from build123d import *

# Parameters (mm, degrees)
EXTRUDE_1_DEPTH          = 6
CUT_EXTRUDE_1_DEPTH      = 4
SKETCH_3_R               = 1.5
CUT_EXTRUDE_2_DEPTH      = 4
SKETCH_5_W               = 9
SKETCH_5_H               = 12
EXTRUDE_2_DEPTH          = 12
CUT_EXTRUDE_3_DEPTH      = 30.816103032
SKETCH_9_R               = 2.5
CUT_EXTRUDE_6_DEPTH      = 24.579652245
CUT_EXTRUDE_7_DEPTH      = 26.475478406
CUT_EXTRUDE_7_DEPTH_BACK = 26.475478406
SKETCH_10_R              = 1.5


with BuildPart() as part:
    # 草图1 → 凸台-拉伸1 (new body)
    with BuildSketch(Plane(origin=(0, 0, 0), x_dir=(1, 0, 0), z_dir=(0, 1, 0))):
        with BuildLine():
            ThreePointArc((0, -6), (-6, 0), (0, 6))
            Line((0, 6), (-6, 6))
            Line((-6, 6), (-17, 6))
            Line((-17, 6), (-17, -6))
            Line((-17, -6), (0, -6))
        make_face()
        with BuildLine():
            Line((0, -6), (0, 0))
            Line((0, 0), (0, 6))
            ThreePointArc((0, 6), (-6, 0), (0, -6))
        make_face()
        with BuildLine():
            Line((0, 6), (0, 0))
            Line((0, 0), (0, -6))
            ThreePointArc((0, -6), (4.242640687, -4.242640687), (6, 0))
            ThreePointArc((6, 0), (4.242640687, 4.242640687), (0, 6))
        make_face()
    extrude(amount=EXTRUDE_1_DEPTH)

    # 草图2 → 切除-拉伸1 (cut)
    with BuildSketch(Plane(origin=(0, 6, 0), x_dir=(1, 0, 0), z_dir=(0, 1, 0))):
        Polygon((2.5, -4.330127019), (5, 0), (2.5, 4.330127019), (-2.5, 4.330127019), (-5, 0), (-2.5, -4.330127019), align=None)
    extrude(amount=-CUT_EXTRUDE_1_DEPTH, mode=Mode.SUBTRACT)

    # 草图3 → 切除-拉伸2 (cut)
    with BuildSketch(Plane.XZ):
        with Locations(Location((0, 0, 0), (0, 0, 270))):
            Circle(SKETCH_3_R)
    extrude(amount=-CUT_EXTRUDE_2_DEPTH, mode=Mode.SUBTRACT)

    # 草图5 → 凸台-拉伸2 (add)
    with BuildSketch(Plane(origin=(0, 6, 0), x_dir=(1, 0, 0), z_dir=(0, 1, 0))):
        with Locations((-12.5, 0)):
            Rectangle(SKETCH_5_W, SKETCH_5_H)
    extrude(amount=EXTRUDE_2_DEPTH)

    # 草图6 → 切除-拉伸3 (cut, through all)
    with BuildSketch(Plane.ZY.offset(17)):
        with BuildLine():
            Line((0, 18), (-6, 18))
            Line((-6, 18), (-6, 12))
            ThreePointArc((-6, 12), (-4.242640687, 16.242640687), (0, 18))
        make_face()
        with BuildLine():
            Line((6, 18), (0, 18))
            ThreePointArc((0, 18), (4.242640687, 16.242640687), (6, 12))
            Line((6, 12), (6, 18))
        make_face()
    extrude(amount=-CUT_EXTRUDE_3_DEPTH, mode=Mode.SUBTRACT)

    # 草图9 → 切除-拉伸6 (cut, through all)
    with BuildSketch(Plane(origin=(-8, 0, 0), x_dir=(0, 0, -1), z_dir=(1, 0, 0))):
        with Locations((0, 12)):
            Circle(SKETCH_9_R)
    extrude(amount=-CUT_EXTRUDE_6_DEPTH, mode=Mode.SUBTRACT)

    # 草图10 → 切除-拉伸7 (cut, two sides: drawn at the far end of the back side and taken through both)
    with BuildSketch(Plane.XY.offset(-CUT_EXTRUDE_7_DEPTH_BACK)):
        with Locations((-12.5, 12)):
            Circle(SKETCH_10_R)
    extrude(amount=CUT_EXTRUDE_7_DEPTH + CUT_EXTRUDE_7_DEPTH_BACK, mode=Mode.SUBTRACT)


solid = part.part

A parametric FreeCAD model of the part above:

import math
import FreeCAD as App
import Part
import Sketcher
Q = App.Units.Quantity


def add_polygon(sketch, points):
    """Adds a closed chain of lines whose ends are joined by coincident constraints."""
    first, n = sketch.GeometryCount, len(points)
    for a, b in zip(points, points[1:] + points[:1]):
        sketch.addGeometry(Part.LineSegment(App.Vector(*a, 0), App.Vector(*b, 0)), False)
    for i in range(n):
        sketch.addConstraint(Sketcher.Constraint("Coincident", first + i, 2, first + (i + 1) % n, 1))

doc = App.newDocument("Part")
params = doc.addObject("Spreadsheet::Sheet", "Params")
for row, (alias, value) in enumerate([
    ("sketch1_radius", "6 mm"),
    ("sketch1_width", "17 mm"),
    ("pad1_length", "6 mm"),
    ("sketch2_width", "5 mm"),
    ("sketch2_length", "5 mm"),
    ("pocket1_length", "4 mm"),
    ("sketch3_diameter", "3 mm"),
    ("pocket2_length", "4 mm"),
    ("sketch4_width", "9 mm"),
    ("sketch4_height", "12 mm"),
    ("pad2_length", "12 mm"),
    ("sketch5_radius", "6 mm"),
    ("sketch6_diameter", "5 mm"),
    ("sketch7_diameter", "3 mm"),
], start=1):
    params.set(f"A{row}", alias)
    params.set(f"B{row}", "=" + value)
    params.setAlias(f"B{row}", alias)

body = doc.addObject("PartDesign::Body", "Body")

# Sketch on XZ plane
sketch1 = body.newObject("Sketcher::SketchObject", "Sketch")
sketch1.AttachmentSupport = (doc.getObject("XZ_Plane"), [""])
sketch1.MapMode = "FlatFace"
sketch1.addGeometry([
    Part.LineSegment(App.Vector(-17, -6, 0), App.Vector(-17, 6, 0)),  # 0
    Part.LineSegment(App.Vector(-17, 6, 0), App.Vector(0, 6, 0)),  # 1
    Part.ArcOfCircle(Part.Circle(App.Vector(0, 0, 0), App.Vector(0, 0, 1), 6), math.radians(0), math.radians(90)),  # 2
    Part.ArcOfCircle(Part.Circle(App.Vector(0, 0, 0), App.Vector(0, 0, 1), 6), math.radians(-90), math.radians(0)),  # 3
    Part.LineSegment(App.Vector(0, -6, 0), App.Vector(-17, -6, 0)),  # 4
], False)
sketch1.addConstraint([
    Sketcher.Constraint("Coincident", 0, 2, 1, 1),
    Sketcher.Constraint("Tangent", 1, 2, 2, 2),
    Sketcher.Constraint("Tangent", 2, 1, 3, 2),
    Sketcher.Constraint("Tangent", 3, 1, 4, 1),
    Sketcher.Constraint("Coincident", 4, 2, 0, 1),
    Sketcher.Constraint("Vertical", 0),
    Sketcher.Constraint("Horizontal", 1),
    Sketcher.Constraint("Horizontal", 4),
    Sketcher.Constraint("Coincident", 2, 3, -1, 1),
    Sketcher.Constraint("Equal", 2, 3),
    Sketcher.Constraint("PointOnObject", 2, 1, -1),
    Sketcher.Constraint("Radius", 2, 6.0),
    Sketcher.Constraint("DistanceX", 1, 1, 1, 2, 17.0),
])
sketch1.setExpression("Constraints[11]", "Params.sketch1_radius")
sketch1.setExpression("Constraints[12]", "Params.sketch1_width")
pad1 = body.newObject("PartDesign::Pad", "Pad")
pad1.Profile = sketch1
pad1.setExpression("Length", "Params.pad1_length")
pad1.Reversed = True

# Sketch on XZ plane
sketch2 = body.newObject("Sketcher::SketchObject", "Sketch001")
sketch2.AttachmentSupport = (doc.getObject("XZ_Plane"), [""])
sketch2.MapMode = "FlatFace"
sketch2.AttachmentOffset = App.Placement(App.Vector(0, 0, -6), App.Rotation())
add_polygon(sketch2, [(2.5, 4.330127), (5, 0), (2.5, -4.330127), (-2.5, -4.330127), (-5, 0), (-2.5, 4.330127)])  # lines 0-5
sketch2.addConstraint([
    Sketcher.Constraint("Horizontal", 2),
    Sketcher.Constraint("Horizontal", 5),
    Sketcher.Constraint("Symmetric", 0, 2, 3, 2, -1, 1),
    Sketcher.Constraint("Symmetric", 1, 2, 4, 2, -1, 1),
    Sketcher.Constraint("PointOnObject", 0, 2, -1),
    Sketcher.Constraint("Parallel", 0, 3),
    Sketcher.Constraint("Vertical", 2, 2, 4, 2),
    Sketcher.Constraint("DistanceX", 2, 2, 2, 1, 5.0),
    Sketcher.Constraint("Angle", 0, Q("-60 deg")),
    Sketcher.Constraint("Distance", 0, 5.0),
])
sketch2.setExpression("Constraints[13]", "Params.sketch2_width")
sketch2.setExpression("Constraints[15]", "Params.sketch2_length")
pocket1 = body.newObject("PartDesign::Pocket", "Pocket")
pocket1.Profile = sketch2
pocket1.setExpression("Length", "Params.pocket1_length")
pocket1.Reversed = True

# Sketch on XZ plane
sketch3 = body.newObject("Sketcher::SketchObject", "Sketch002")
sketch3.AttachmentSupport = (doc.getObject("XZ_Plane"), [""])
sketch3.MapMode = "FlatFace"
sketch3.addGeometry(Part.Circle(App.Vector(0, 0, 0), App.Vector(0, 0, 1), 1.5), False)
sketch3.addConstraint([
    Sketcher.Constraint("Coincident", 0, 3, -1, 1),
    Sketcher.Constraint("Diameter", 0, 3.0),
])
sketch3.setExpression("Constraints[1]", "Params.sketch3_diameter")
pocket2 = body.newObject("PartDesign::Pocket", "Pocket001")
pocket2.Profile = sketch3
pocket2.setExpression("Length", "Params.pocket2_length")

# Sketch on XZ plane
sketch4 = body.newObject("Sketcher::SketchObject", "Sketch003")
sketch4.AttachmentSupport = (doc.getObject("XZ_Plane"), [""])
sketch4.MapMode = "FlatFace"
sketch4.AttachmentOffset = App.Placement(App.Vector(0, 0, -6), App.Rotation())
add_polygon(sketch4, [(-17, -6), (-17, 6), (-8, 6), (-8, -6)])  # lines 0-3
sketch4.addConstraint([
    Sketcher.Constraint("Vertical", 0),
    Sketcher.Constraint("Horizontal", 1),
    Sketcher.Constraint("Vertical", 2),
    Sketcher.Constraint("Horizontal", 3),
    Sketcher.Constraint("DistanceX", 1, 1, 1, 2, 9.0),
    Sketcher.Constraint("DistanceY", 0, 1, 0, 2, 12.0),
    Sketcher.Constraint("DistanceX", 0, 2, -1, 1, 17.0),
    Sketcher.Constraint("DistanceY", -1, 1, 0, 2, 6.0),
])
sketch4.setExpression("Constraints[8]", "Params.sketch4_width")
sketch4.setExpression("Constraints[9]", "Params.sketch4_height")
pad2 = body.newObject("PartDesign::Pad", "Pad001")
pad2.Profile = sketch4
pad2.setExpression("Length", "Params.pad2_length")
pad2.Reversed = True

# Sketch on YZ plane
sketch5 = body.newObject("Sketcher::SketchObject", "Sketch004")
sketch5.AttachmentSupport = (doc.getObject("YZ_Plane"), [""])
sketch5.MapMode = "FlatFace"
sketch5.AttachmentOffset = App.Placement(App.Vector(0, 0, -17), App.Rotation())
sketch5.addGeometry([
    Part.LineSegment(App.Vector(18, 0, 0), App.Vector(18, -6, 0)),  # 0
    Part.LineSegment(App.Vector(18, -6, 0), App.Vector(12, -6, 0)),  # 1
    Part.ArcOfCircle(Part.Circle(App.Vector(12, 0, 0), App.Vector(0, 0, 1), 6), math.radians(-90), math.radians(0)),  # 2
    Part.LineSegment(App.Vector(18, 6, 0), App.Vector(18, 0, 0)),  # 3
    Part.ArcOfCircle(Part.Circle(App.Vector(12, 0, 0), App.Vector(0, 0, 1), 6), math.radians(0), math.radians(90)),  # 4
    Part.LineSegment(App.Vector(12, 6, 0), App.Vector(18, 6, 0)),  # 5
], False)
sketch5.addConstraint([
    Sketcher.Constraint("Coincident", 0, 2, 1, 1),
    Sketcher.Constraint("Tangent", 1, 2, 2, 1),
    Sketcher.Constraint("Tangent", 2, 2, 0, 1),
    Sketcher.Constraint("Tangent", 3, 2, 4, 1),
    Sketcher.Constraint("Tangent", 4, 2, 5, 1),
    Sketcher.Constraint("Coincident", 5, 2, 3, 1),
    Sketcher.Constraint("Vertical", 0),
    Sketcher.Constraint("Horizontal", 1),
    Sketcher.Constraint("Vertical", 3),
    Sketcher.Constraint("Horizontal", 5),
    Sketcher.Constraint("Coincident", 4, 3, 2, 3),
    Sketcher.Constraint("Equal", 2, 4),
    Sketcher.Constraint("PointOnObject", 2, 3, -1),
    Sketcher.Constraint("Radius", 2, 6.0),
    Sketcher.Constraint("DistanceX", -1, 1, 2, 3, 12.0),
])
sketch5.setExpression("Constraints[13]", "Params.sketch5_radius")
pocket3 = body.newObject("PartDesign::Pocket", "Pocket002")
pocket3.Profile = sketch5
pocket3.Type = "ThroughAll"
pocket3.Reversed = True

# Sketch on YZ plane
sketch6 = body.newObject("Sketcher::SketchObject", "Sketch005")
sketch6.AttachmentSupport = (doc.getObject("YZ_Plane"), [""])
sketch6.MapMode = "FlatFace"
sketch6.AttachmentOffset = App.Placement(App.Vector(0, 0, -8), App.Rotation())
sketch6.addGeometry(Part.Circle(App.Vector(12, 0, 0), App.Vector(0, 0, 1), 2.5), False)
sketch6.addConstraint([
    Sketcher.Constraint("PointOnObject", 0, 3, -1),
    Sketcher.Constraint("Diameter", 0, 5.0),
    Sketcher.Constraint("DistanceX", -1, 1, 0, 3, 12.0),
])
sketch6.setExpression("Constraints[1]", "Params.sketch6_diameter")
pocket4 = body.newObject("PartDesign::Pocket", "Pocket003")
pocket4.Profile = sketch6
pocket4.Type = "ThroughAll"

# Sketch on XY plane
sketch7 = body.newObject("Sketcher::SketchObject", "Sketch006")
sketch7.AttachmentSupport = (doc.getObject("XY_Plane"), [""])
sketch7.MapMode = "FlatFace"
sketch7.addGeometry(Part.Circle(App.Vector(-12.5, 12, 0), App.Vector(0, 0, 1), 1.5), False)
sketch7.addConstraint([
    Sketcher.Constraint("Diameter", 0, 3.0),
    Sketcher.Constraint("DistanceY", -1, 1, 0, 3, 12.0),
    Sketcher.Constraint("DistanceX", 0, 3, -1, 1, 12.5),
])
sketch7.setExpression("Constraints[0]", "Params.sketch7_diameter")
pocket5 = body.newObject("PartDesign::Pocket", "Pocket004")
pocket5.Profile = sketch7
pocket5.Type = "ThroughAll"
pocket5.Midplane = True

doc.recompute()
